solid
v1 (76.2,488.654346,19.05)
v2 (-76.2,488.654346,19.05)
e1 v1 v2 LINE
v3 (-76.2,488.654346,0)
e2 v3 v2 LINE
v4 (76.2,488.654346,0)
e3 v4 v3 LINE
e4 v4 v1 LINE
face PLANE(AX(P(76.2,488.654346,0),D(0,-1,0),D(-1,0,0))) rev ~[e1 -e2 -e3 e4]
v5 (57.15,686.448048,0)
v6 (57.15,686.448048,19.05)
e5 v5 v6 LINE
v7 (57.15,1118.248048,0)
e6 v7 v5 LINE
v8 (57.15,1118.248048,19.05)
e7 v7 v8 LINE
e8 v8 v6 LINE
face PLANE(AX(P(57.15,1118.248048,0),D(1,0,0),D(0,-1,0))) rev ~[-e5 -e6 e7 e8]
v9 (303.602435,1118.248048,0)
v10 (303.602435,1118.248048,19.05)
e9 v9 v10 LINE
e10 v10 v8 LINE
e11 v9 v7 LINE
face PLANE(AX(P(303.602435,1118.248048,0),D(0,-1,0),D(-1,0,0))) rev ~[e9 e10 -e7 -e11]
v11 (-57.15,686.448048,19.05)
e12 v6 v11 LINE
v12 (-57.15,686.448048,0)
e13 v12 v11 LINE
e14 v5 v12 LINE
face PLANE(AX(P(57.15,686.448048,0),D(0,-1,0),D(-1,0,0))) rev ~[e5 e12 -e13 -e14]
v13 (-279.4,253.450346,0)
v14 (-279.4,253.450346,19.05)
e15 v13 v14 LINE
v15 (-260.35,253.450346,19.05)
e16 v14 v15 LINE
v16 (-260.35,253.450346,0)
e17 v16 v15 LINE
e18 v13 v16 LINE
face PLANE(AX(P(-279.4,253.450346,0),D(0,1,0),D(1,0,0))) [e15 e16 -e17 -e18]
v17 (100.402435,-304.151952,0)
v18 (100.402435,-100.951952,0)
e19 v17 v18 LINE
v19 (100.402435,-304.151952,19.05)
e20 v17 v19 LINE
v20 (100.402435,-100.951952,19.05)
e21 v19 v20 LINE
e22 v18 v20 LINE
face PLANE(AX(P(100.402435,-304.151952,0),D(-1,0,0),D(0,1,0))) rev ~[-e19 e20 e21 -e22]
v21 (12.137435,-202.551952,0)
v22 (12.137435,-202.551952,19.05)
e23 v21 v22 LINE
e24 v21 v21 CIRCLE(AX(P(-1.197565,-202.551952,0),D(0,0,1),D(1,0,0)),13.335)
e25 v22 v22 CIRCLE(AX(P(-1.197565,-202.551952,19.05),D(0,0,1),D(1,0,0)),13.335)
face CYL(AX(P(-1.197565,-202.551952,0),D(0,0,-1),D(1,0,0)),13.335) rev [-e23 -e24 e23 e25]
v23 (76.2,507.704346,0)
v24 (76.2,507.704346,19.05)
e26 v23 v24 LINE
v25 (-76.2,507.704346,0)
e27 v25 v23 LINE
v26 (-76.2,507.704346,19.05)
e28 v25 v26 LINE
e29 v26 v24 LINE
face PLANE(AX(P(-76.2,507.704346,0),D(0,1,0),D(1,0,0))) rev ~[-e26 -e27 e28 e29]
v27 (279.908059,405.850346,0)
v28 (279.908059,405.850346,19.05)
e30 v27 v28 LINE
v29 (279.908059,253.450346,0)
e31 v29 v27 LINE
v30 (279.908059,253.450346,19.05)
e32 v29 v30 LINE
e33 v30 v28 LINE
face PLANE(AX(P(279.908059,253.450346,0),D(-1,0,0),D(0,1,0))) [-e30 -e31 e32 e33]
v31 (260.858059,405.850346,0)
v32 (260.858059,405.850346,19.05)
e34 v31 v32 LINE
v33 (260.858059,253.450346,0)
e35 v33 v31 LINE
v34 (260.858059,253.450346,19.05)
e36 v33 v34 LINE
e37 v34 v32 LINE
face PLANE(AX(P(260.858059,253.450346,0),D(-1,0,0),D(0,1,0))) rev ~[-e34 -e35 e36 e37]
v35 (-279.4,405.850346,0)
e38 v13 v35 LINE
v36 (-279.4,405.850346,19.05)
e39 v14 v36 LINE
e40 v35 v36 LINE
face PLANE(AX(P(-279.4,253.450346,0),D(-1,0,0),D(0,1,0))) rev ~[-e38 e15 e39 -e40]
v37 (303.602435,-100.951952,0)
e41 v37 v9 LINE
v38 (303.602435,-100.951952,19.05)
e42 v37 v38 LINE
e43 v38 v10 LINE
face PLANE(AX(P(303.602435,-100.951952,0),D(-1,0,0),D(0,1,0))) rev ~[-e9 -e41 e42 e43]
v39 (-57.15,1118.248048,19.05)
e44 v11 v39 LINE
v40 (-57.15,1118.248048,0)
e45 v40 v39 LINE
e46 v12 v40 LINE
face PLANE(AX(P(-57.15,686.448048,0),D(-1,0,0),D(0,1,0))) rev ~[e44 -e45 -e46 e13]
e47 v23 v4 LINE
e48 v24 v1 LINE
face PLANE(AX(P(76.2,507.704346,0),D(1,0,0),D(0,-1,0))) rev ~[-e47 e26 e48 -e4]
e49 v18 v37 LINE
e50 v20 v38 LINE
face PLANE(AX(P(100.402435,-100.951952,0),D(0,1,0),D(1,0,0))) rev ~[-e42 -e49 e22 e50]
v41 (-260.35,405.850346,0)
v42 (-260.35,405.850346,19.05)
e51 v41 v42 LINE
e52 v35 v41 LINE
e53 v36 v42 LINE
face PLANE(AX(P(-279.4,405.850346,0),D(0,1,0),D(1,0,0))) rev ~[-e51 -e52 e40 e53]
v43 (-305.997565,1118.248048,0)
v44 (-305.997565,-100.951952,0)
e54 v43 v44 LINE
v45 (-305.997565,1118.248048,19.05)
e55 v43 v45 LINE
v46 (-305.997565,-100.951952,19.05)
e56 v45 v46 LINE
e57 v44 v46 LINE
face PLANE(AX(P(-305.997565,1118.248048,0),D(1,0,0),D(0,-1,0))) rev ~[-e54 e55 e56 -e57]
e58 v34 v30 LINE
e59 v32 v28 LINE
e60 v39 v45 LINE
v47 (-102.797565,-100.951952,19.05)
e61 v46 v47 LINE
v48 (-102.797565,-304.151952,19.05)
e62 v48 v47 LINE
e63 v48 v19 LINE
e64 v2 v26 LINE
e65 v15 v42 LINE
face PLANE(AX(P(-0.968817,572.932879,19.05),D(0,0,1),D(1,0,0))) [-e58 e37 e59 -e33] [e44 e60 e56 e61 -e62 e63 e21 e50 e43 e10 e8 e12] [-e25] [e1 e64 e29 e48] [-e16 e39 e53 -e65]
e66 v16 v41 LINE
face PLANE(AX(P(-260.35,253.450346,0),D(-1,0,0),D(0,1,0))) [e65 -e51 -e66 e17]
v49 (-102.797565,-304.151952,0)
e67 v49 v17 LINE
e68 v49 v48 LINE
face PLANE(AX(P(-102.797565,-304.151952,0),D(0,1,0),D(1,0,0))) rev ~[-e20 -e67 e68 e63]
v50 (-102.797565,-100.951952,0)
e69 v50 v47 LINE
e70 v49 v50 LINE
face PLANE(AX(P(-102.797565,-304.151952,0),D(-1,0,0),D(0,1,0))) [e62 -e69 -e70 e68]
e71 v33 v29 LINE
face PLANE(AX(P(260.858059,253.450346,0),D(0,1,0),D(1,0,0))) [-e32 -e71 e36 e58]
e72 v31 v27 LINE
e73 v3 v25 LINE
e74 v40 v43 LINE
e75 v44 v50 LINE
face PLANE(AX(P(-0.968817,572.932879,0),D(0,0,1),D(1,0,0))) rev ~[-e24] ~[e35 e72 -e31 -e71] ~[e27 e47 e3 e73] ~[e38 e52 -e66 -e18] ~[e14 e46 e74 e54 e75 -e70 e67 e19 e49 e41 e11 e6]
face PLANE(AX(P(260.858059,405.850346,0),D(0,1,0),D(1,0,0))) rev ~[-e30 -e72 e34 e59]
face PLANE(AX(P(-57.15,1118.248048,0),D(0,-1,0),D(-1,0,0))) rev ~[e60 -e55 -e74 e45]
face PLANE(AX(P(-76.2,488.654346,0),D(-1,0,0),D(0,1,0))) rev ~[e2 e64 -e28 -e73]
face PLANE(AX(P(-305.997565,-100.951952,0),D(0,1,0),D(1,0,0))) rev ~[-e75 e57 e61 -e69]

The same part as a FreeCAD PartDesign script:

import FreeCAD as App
import Part
import Sketcher
from FreeCAD import Vector
Q = App.Units.Quantity

doc = App.newDocument("Part")
body = doc.addObject("PartDesign::Body", "Body")

# Sketch on XY plane
sketch1 = body.newObject("Sketcher::SketchObject", "Sketch")
sketch1.AttachmentSupport = (doc.getObject("XY_Plane"), [""])
sketch1.MapMode = "FlatFace"
sketch1.addGeometry([
    Part.LineSegment(Vector(-306, 1118, 0), Vector(-306, -101, 0)),  # 0
    Part.LineSegment(Vector(-306, -101, 0), Vector(-103, -101, 0)),  # 1
    Part.LineSegment(Vector(-103, -101, 0), Vector(-103, -304, 0)),  # 2
    Part.LineSegment(Vector(-103, -304, 0), Vector(100, -304, 0)),  # 3
    Part.LineSegment(Vector(100, -304, 0), Vector(100, -101, 0)),  # 4
    Part.LineSegment(Vector(100, -101, 0), Vector(304, -101, 0)),  # 5
    Part.LineSegment(Vector(304, -101, 0), Vector(304, 1118, 0)),  # 6
    Part.LineSegment(Vector(304, 1118, 0), Vector(57, 1118, 0)),  # 7
    Part.LineSegment(Vector(57, 1118, 0), Vector(57, 686, 0)),  # 8
    Part.LineSegment(Vector(57, 686, 0), Vector(-57, 686, 0)),  # 9
    Part.LineSegment(Vector(-57, 686, 0), Vector(-57, 1118, 0)),  # 10
    Part.LineSegment(Vector(-57, 1118, 0), Vector(-306, 1118, 0)),  # 11
    Part.Circle(Vector(-1, -203, 0), Vector(0, 0, 1), 13),  # 12
    Part.LineSegment(Vector(-260, 253, 0), Vector(-279, 253, 0)),  # 13
    Part.LineSegment(Vector(-279, 253, 0), Vector(-279, 406, 0)),  # 14
    Part.LineSegment(Vector(-279, 406, 0), Vector(-260, 406, 0)),  # 15
    Part.LineSegment(Vector(-260, 406, 0), Vector(-260, 253, 0)),  # 16
    Part.LineSegment(Vector(-76, 508, 0), Vector(76, 508, 0)),  # 17
    Part.LineSegment(Vector(76, 508, 0), Vector(76, 489, 0)),  # 18
    Part.LineSegment(Vector(76, 489, 0), Vector(-76, 489, 0)),  # 19
    Part.LineSegment(Vector(-76, 489, 0), Vector(-76, 508, 0)),  # 20
    Part.LineSegment(Vector(280, 253, 0), Vector(261, 253, 0)),  # 21
    Part.LineSegment(Vector(261, 253, 0), Vector(261, 406, 0)),  # 22
    Part.LineSegment(Vector(261, 406, 0), Vector(280, 406, 0)),  # 23
    Part.LineSegment(Vector(280, 406, 0), Vector(280, 253, 0)),  # 24
], False)
sketch1.addConstraint([
    Sketcher.Constraint("Coincident", 0, 2, 1, 1),
    Sketcher.Constraint("Coincident", 1, 2, 2, 1),
    Sketcher.Constraint("Coincident", 2, 2, 3, 1),
    Sketcher.Constraint("Coincident", 3, 2, 4, 1),
    Sketcher.Constraint("Coincident", 4, 2, 5, 1),
    Sketcher.Constraint("Coincident", 5, 2, 6, 1),
    Sketcher.Constraint("Coincident", 6, 2, 7, 1),
    Sketcher.Constraint("Coincident", 7, 2, 8, 1),
    Sketcher.Constraint("Coincident", 8, 2, 9, 1),
    Sketcher.Constraint("Coincident", 9, 2, 10, 1),
    Sketcher.Constraint("Coincident", 10, 2, 11, 1),
    Sketcher.Constraint("Coincident", 11, 2, 0, 1),
    Sketcher.Constraint("Coincident", 13, 2, 14, 1),
    Sketcher.Constraint("Coincident", 14, 2, 15, 1),
    Sketcher.Constraint("Coincident", 15, 2, 16, 1),
    Sketcher.Constraint("Coincident", 16, 2, 13, 1),
    Sketcher.Constraint("Coincident", 17, 2, 18, 1),
    Sketcher.Constraint("Coincident", 18, 2, 19, 1),
    Sketcher.Constraint("Coincident", 19, 2, 20, 1),
    Sketcher.Constraint("Coincident", 20, 2, 17, 1),
    Sketcher.Constraint("Coincident", 21, 2, 22, 1),
    Sketcher.Constraint("Coincident", 22, 2, 23, 1),
    Sketcher.Constraint("Coincident", 23, 2, 24, 1),
    Sketcher.Constraint("Coincident", 24, 2, 21, 1),
    Sketcher.Constraint("Vertical", 0),
    Sketcher.Constraint("Horizontal", 1),
    Sketcher.Constraint("Vertical", 2),
    Sketcher.Constraint("Horizontal", 3),
    Sketcher.Constraint("Vertical", 4),
    Sketcher.Constraint("Horizontal", 5),
    Sketcher.Constraint("Vertical", 6),
    Sketcher.Constraint("Horizontal", 7),
    Sketcher.Constraint("Vertical", 8),
    Sketcher.Constraint("Horizontal", 9),
    Sketcher.Constraint("Vertical", 10),
    Sketcher.Constraint("Horizontal", 11),
    Sketcher.Constraint("Horizontal", 13),
    Sketcher.Constraint("Vertical", 14),
    Sketcher.Constraint("Horizontal", 15),
    Sketcher.Constraint("Vertical", 16),
    Sketcher.Constraint("Horizontal", 17),
    Sketcher.Constraint("Vertical", 18),
    Sketcher.Constraint("Horizontal", 19),
    Sketcher.Constraint("Vertical", 20),
    Sketcher.Constraint("Horizontal", 21),
    Sketcher.Constraint("Vertical", 22),
    Sketcher.Constraint("Horizontal", 23),
    Sketcher.Constraint("Vertical", 24),
    Sketcher.Constraint("Symmetric", 7, 2, 10, 2, -2),
    Sketcher.Constraint("Horizontal", 1, 2, 4, 2),
    Sketcher.Constraint("Horizontal", 16, 2, 21, 2),
    Sketcher.Constraint("Horizontal", 15, 2, 22, 2),
    Sketcher.Constraint("Equal", 1, 3),
    Sketcher.Constraint("Equal", 3, 5),
    Sketcher.Constraint("Equal", 15, 21),
    Sketcher.Constraint("Equal", 5, 2),
    Sketcher.Constraint("Equal", 19, 14),
    Sketcher.Constraint("Equal", 23, 18),
    Sketcher.Constraint("Diameter", 12, Q("1.05 in")),
    Sketcher.Constraint("DistanceX", 1, 1, 1, 2, Q("8 in")),
    Sketcher.Constraint("DistanceX", 17, 1, 17, 2, Q("6 in")),
    Sketcher.Constraint("DistanceY", 0, 2, 0, 1, Q("48 in")),
    Sketcher.Constraint("DistanceY", 8, 2, 8, 1, Q("17 in")),
    Sketcher.Constraint("DistanceX", 9, 2, 9, 1, Q("4.5 in")),
    Sketcher.Constraint("DistanceX", 13, 2, -1, 1, Q("11 in")),
    Sketcher.Constraint("DistanceX", -1, 1, 17, 2, Q("3 in")),
    Sketcher.Constraint("DistanceX", 0, 2, 12, 3, Q("12 in")),
    Sketcher.Constraint("DistanceY", 12, 3, 0, 2, Q("4 in")),
    Sketcher.Constraint("DistanceX", 15, 2, 9, 2, Q("8 in")),
    Sketcher.Constraint("DistanceY", 15, 2, 17, 2, Q("4.01 in")),
    Sketcher.Constraint("DistanceY", 13, 2, 9, 2, 432.997702),
    Sketcher.Constraint("DistanceX", 7, 2, 7, 1, 246.452435),
    Sketcher.Constraint("DistanceY", 12, 3, -1, 1, 202.551952),
    Sketcher.Constraint("DistanceX", -1, 1, 21, 2, 260.858059),
])
pad1 = body.newObject("PartDesign::Pad", "Pad")
pad1.Profile = sketch1
pad1.Length = Q("0.75 in")

doc.recompute()
